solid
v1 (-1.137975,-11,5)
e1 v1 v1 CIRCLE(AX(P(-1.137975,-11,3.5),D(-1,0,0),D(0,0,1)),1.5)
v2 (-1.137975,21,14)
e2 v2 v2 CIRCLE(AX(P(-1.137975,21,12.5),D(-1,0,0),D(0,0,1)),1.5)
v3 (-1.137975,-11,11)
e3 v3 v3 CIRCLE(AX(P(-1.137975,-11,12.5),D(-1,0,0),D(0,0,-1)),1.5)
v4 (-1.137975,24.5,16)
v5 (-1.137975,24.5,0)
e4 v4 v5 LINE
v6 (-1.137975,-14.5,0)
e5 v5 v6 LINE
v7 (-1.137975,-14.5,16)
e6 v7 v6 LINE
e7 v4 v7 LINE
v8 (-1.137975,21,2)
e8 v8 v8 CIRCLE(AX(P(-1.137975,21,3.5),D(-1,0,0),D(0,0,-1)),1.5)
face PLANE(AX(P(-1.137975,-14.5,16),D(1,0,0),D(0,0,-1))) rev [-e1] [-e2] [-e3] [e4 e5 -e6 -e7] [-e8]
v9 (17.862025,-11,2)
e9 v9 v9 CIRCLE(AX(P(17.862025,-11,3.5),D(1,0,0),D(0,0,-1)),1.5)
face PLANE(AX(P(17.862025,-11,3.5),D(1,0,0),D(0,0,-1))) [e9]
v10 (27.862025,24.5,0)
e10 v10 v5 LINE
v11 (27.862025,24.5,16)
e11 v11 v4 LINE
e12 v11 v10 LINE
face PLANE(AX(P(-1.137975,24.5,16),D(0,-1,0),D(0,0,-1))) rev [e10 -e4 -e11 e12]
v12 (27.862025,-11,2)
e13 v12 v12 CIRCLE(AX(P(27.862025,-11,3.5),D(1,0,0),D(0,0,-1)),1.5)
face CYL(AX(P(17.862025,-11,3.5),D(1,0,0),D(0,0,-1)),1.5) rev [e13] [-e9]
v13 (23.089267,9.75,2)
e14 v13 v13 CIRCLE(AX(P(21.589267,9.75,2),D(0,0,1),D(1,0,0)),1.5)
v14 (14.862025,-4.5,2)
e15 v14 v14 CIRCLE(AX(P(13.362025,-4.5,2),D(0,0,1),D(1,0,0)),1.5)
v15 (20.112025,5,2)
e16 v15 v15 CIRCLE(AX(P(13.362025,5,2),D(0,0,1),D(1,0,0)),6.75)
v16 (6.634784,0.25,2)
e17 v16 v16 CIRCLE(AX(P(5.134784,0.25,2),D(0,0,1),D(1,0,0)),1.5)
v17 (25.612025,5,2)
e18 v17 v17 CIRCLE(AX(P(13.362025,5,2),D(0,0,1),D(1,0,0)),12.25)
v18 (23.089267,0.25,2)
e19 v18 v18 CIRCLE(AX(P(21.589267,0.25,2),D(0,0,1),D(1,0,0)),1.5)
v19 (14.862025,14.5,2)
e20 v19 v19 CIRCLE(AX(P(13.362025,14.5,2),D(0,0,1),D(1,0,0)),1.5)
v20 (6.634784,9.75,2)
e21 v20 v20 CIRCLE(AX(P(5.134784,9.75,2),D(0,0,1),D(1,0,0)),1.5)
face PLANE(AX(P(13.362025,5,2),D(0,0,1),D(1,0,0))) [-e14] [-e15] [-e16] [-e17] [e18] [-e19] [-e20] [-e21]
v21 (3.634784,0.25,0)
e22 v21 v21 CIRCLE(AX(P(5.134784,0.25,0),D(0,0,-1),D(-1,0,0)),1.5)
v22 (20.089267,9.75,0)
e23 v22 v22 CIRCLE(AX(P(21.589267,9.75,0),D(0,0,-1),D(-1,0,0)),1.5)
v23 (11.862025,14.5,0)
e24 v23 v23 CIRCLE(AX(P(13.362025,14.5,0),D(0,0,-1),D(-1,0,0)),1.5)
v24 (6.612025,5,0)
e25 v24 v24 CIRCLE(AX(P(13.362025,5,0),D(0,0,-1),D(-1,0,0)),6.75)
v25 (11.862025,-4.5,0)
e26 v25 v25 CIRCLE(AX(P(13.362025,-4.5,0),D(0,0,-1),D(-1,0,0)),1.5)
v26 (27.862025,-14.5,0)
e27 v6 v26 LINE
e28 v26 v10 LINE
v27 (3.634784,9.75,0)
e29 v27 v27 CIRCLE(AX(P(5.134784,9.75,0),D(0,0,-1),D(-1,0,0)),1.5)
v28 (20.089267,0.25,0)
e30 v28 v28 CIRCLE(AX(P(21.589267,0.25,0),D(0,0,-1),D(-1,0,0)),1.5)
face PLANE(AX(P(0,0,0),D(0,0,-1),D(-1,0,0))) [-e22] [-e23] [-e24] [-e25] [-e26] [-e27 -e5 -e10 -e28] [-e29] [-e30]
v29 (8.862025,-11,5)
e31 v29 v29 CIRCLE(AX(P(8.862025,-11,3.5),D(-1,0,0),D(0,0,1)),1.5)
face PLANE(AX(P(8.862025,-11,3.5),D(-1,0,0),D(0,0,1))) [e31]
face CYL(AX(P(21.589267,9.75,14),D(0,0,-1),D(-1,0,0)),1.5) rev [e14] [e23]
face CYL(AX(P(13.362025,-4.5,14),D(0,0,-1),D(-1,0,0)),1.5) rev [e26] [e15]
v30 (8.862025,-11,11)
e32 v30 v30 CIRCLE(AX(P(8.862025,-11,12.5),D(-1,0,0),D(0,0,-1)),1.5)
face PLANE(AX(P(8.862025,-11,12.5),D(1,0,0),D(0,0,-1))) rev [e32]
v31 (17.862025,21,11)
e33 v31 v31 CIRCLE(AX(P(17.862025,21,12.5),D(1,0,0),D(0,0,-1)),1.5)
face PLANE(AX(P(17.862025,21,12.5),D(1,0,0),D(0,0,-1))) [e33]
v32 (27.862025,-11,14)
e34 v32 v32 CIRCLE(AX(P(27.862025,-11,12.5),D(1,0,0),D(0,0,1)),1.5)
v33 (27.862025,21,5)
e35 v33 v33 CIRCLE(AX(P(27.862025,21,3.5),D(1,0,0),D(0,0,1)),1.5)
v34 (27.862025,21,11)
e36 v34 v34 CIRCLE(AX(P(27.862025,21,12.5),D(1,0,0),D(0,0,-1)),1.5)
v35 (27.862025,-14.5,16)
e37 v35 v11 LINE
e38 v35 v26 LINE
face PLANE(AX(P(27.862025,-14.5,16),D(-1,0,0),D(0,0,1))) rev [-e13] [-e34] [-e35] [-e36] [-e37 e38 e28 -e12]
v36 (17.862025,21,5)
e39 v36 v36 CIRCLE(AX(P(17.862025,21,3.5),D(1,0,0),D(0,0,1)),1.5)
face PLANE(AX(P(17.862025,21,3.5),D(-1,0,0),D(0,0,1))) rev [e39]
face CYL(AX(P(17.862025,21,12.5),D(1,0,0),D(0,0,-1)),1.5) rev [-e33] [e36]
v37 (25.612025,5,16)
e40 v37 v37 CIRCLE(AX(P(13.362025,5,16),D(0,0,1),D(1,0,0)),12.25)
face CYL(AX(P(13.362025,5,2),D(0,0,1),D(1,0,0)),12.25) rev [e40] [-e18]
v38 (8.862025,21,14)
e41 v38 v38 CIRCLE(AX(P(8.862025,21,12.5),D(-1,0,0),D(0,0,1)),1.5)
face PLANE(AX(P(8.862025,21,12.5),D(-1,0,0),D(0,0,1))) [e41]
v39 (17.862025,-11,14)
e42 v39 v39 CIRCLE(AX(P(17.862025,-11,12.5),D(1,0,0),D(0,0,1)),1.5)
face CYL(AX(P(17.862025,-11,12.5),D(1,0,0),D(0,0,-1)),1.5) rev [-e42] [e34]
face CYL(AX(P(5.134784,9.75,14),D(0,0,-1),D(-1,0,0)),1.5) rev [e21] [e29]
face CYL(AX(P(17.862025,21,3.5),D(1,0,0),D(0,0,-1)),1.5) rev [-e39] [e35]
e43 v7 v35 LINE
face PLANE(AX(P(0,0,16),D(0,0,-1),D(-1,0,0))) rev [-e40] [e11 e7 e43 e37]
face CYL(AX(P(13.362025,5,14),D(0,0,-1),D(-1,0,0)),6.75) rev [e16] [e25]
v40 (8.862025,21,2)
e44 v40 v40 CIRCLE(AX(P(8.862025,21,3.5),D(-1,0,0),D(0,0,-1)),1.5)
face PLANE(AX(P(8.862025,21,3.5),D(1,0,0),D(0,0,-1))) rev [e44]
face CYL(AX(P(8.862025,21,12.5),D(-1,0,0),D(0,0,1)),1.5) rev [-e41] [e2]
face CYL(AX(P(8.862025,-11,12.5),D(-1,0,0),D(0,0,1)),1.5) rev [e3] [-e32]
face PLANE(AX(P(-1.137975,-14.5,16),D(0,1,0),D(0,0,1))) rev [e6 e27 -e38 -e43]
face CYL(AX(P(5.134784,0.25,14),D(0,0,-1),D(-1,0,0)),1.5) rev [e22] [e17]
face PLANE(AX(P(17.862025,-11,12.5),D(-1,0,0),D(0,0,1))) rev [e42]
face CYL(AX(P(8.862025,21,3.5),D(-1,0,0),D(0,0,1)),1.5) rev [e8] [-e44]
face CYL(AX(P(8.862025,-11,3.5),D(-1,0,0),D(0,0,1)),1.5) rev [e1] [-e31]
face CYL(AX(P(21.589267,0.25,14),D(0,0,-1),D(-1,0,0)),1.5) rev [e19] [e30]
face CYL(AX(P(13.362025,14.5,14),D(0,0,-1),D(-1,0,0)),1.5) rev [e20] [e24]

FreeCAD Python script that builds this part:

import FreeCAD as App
import Part
import Sketcher

V = App.Vector
Q = App.Units.Quantity


def add_polygon(sketch, points):
    """Adds a closed chain of lines whose ends are joined by coincident constraints."""
    first, n = sketch.GeometryCount, len(points)
    for a, b in zip(points, points[1:] + points[:1]):
        sketch.addGeometry(Part.LineSegment(App.Vector(*a, 0), App.Vector(*b, 0)), False)
    for i in range(n):
        sketch.addConstraint(Sketcher.Constraint("Coincident", first + i, 2, first + (i + 1) % n, 1))

doc = App.newDocument("Part")
params = doc.addObject("Spreadsheet::Sheet", "Params")
for row, (alias, value) in enumerate([
    ("sketch1_width", "29 mm"),
    ("sketch1_height", "39 mm"),
    ("pad1_length", "16 mm"),
    ("sketch2_diameter", "24.5 mm"),
    ("pocket1_length", "14 mm"),
    ("sketch3_diameter", "13.5 mm"),
    ("pocket2_length", "14 mm"),
    ("sketch4_diameter", "3 mm"),
    ("pocket3_length", "14 mm"),
    ("sketch5_diameter", "3 mm"),
    ("pocket4_length", "10 mm"),
    ("sketch6_diameter", "3 mm"),
    ("pocket5_length", "10 mm"),
], start=1):
    params.set(f"A{row}", alias)
    params.set(f"B{row}", "=" + value)
    params.setAlias(f"B{row}", alias)

body = doc.addObject("PartDesign::Body", "Body")

sketch1 = body.newObject("Sketcher::SketchObject", "Sketch")
sketch1.AttachmentSupport = (doc.getObject("XY_Plane"), [""])
sketch1.MapMode = "FlatFace"
add_polygon(sketch1, [(-1, 24), (-1, -14), (28, -14), (28, 24)])
sketch1.addConstraint(Sketcher.Constraint("Vertical", 0))
sketch1.addConstraint(Sketcher.Constraint("Horizontal", 1))
sketch1.addConstraint(Sketcher.Constraint("Vertical", 2))
sketch1.addConstraint(Sketcher.Constraint("Horizontal", 3))
sketch1.addConstraint(Sketcher.Constraint("DistanceX", 1, 1, 1, 2, Q("29 mm")))
sketch1.addConstraint(Sketcher.Constraint("DistanceY", 0, 2, 0, 1, Q("39 mm")))
sketch1.addConstraint(Sketcher.Constraint("DistanceY", 0, 2, -1, 1, Q("14.5 mm")))
sketch1.addConstraint(Sketcher.Constraint("DistanceX", 0, 2, -1, 1, Q("1.137975 mm")))
sketch1.setExpression("Constraints[8]", "Params.sketch1_width")
sketch1.setExpression("Constraints[9]", "Params.sketch1_height")
pad1 = body.newObject("PartDesign::Pad", "Pad")
pad1.Profile = sketch1
pad1.setExpression("Length", "Params.pad1_length")

sketch2 = body.newObject("Sketcher::SketchObject", "Sketch001")
sketch2.AttachmentSupport = (doc.getObject("XY_Plane"), [""])
sketch2.MapMode = "FlatFace"
sketch2.AttachmentOffset = App.Placement(V(0, 0, 16), App.Rotation())
sketch2.addGeometry(Part.Circle(V(13, 5, 0), V(0, 0, 1), 12), False)
sketch2.addConstraint(Sketcher.Constraint("Diameter", 0, Q("24.5 mm")))
sketch2.addConstraint(Sketcher.Constraint("DistanceY", -1, 1, 0, 3, Q("5 mm")))
sketch2.addConstraint(Sketcher.Constraint("DistanceX", -1, 1, 0, 3, Q("13.362025 mm")))
sketch2.setExpression("Constraints[0]", "Params.sketch2_diameter")
pocket1 = body.newObject("PartDesign::Pocket", "Pocket")
pocket1.Profile = sketch2
pocket1.setExpression("Length", "Params.pocket1_length")

sketch3 = body.newObject("Sketcher::SketchObject", "Sketch002")
sketch3.AttachmentSupport = (doc.getObject("XY_Plane"), [""])
sketch3.MapMode = "FlatFace"
sketch3.addGeometry(Part.Circle(V(13, 5, 0), V(0, 0, 1), 7), False)
sketch3.addConstraint(Sketcher.Constraint("Diameter", 0, Q("13.5 mm")))
sketch3.addConstraint(Sketcher.Constraint("DistanceY", -1, 1, 0, 3, Q("5 mm")))
sketch3.addConstraint(Sketcher.Constraint("DistanceX", -1, 1, 0, 3, Q("13.362025 mm")))
sketch3.setExpression("Constraints[0]", "Params.sketch3_diameter")
pocket2 = body.newObject("PartDesign::Pocket", "Pocket001")
pocket2.Profile = sketch3
pocket2.setExpression("Length", "Params.pocket2_length")
pocket2.Reversed = True

sketch4 = body.newObject("Sketcher::SketchObject", "Sketch003")
sketch4.AttachmentSupport = (doc.getObject("XY_Plane"), [""])
sketch4.MapMode = "FlatFace"
sketch4.addGeometry(Part.Circle(V(13.4, 14.5, 0), V(0, 0, 1), 1.5), False)
sketch4.addGeometry(Part.Circle(V(5.1, 9.8, 0), V(0, 0, 1), 1.5), False)
sketch4.addGeometry(Part.Circle(V(5.1, 0.2, 0), V(0, 0, 1), 1.5), False)
sketch4.addGeometry(Part.Circle(V(13.4, -4.5, 0), V(0, 0, 1), 1.5), False)
sketch4.addGeometry(Part.Circle(V(21.6, 0.2, 0), V(0, 0, 1), 1.5), False)
sketch4.addGeometry(Part.Circle(V(21.6, 9.8, 0), V(0, 0, 1), 1.5), False)
sketch4.addConstraint(Sketcher.Constraint("Equal", 0, 1))
sketch4.addConstraint(Sketcher.Constraint("Equal", 1, 2))
sketch4.addConstraint(Sketcher.Constraint("Equal", 2, 3))
sketch4.addConstraint(Sketcher.Constraint("Equal", 3, 4))
sketch4.addConstraint(Sketcher.Constraint("Equal", 4, 5))
sketch4.addConstraint(Sketcher.Constraint("Horizontal", 2, 3, 4, 3))
sketch4.addConstraint(Sketcher.Constraint("Horizontal", 1, 3, 5, 3))
sketch4.addConstraint(Sketcher.Constraint("Vertical", 1, 3, 2, 3))
sketch4.addConstraint(Sketcher.Constraint("Vertical", 0, 3, 3, 3))
sketch4.addConstraint(Sketcher.Constraint("Vertical", 4, 3, 5, 3))
sketch4.addConstraint(Sketcher.Constraint("Diameter", 0, Q("3 mm")))
sketch4.addConstraint(Sketcher.Constraint("DistanceY", 3, 3, 0, 3, Q("19 mm")))
sketch4.addConstraint(Sketcher.Constraint("DistanceY", -1, 1, 0, 3, Q("14.5 mm")))
sketch4.addConstraint(Sketcher.Constraint("DistanceY", 2, 3, 1, 3, Q("9.5 mm")))
sketch4.addConstraint(Sketcher.Constraint("DistanceY", -1, 1, 1, 3, Q("9.75 mm")))
sketch4.addConstraint(Sketcher.Constraint("DistanceX", 1, 3, 0, 3, Q("8.227241 mm")))
sketch4.addConstraint(Sketcher.Constraint("DistanceX", 3, 3, 4, 3, Q("8.227241 mm")))
sketch4.addConstraint(Sketcher.Constraint("DistanceX", -1, 1, 0, 3, Q("13.362025 mm")))
sketch4.setExpression("Constraints[10]", "Params.sketch4_diameter")
pocket3 = body.newObject("PartDesign::Pocket", "Pocket002")
pocket3.Profile = sketch4
pocket3.setExpression("Length", "Params.pocket3_length")
pocket3.Reversed = True

sketch5 = body.newObject("Sketcher::SketchObject", "Sketch004")
sketch5.AttachmentSupport = (doc.getObject("YZ_Plane"), [""])
sketch5.MapMode = "FlatFace"
sketch5.AttachmentOffset = App.Placement(V(0, 0, -1.137975), App.Rotation())
sketch5.addGeometry(Part.Circle(V(21, 12.5, 0), V(0, 0, 1), 1.5), False)
sketch5.addGeometry(Part.Circle(V(21, 3.5, 0), V(0, 0, 1), 1.5), False)
sketch5.addGeometry(Part.Circle(V(-11, 12.5, 0), V(0, 0, 1), 1.5), False)
sketch5.addGeometry(Part.Circle(V(-11, 3.5, 0), V(0, 0, 1), 1.5), False)
sketch5.addConstraint(Sketcher.Constraint("Equal", 0, 1))
sketch5.addConstraint(Sketcher.Constraint("Equal", 1, 2))
sketch5.addConstraint(Sketcher.Constraint("Equal", 2, 3))
sketch5.addConstraint(Sketcher.Constraint("Horizontal", 0, 3, 2, 3))
sketch5.addConstraint(Sketcher.Constraint("Horizontal", 1, 3, 3, 3))
sketch5.addConstraint(Sketcher.Constraint("Vertical", 0, 3, 1, 3))
sketch5.addConstraint(Sketcher.Constraint("Vertical", 2, 3, 3, 3))
sketch5.addConstraint(Sketcher.Constraint("Diameter", 0, Q("3 mm")))
sketch5.addConstraint(Sketcher.Constraint("DistanceX", -1, 1, 0, 3, Q("21 mm")))
sketch5.addConstraint(Sketcher.Constraint("DistanceX", 2, 3, -1, 1, Q("11 mm")))
sketch5.addConstraint(Sketcher.Constraint("DistanceY", 1, 3, 0, 3, Q("9 mm")))
sketch5.addConstraint(Sketcher.Constraint("DistanceY", -1, 1, 0, 3, Q("12.5 mm")))
sketch5.setExpression("Constraints[7]", "Params.sketch5_diameter")
pocket4 = body.newObject("PartDesign::Pocket", "Pocket003")
pocket4.Profile = sketch5
pocket4.setExpression("Length", "Params.pocket4_length")
pocket4.Reversed = True

sketch6 = body.newObject("Sketcher::SketchObject", "Sketch005")
sketch6.AttachmentSupport = (doc.getObject("YZ_Plane"), [""])
sketch6.MapMode = "FlatFace"
sketch6.AttachmentOffset = App.Placement(V(0, 0, 17.862025), App.Rotation())
sketch6.addGeometry(Part.Circle(V(-11, 12.5, 0), V(0, 0, 1), 1.5), False)
sketch6.addGeometry(Part.Circle(V(-11, 3.5, 0), V(0, 0, 1), 1.5), False)
sketch6.addGeometry(Part.Circle(V(21, 3.5, 0), V(0, 0, 1), 1.5), False)
sketch6.addGeometry(Part.Circle(V(21, 12.5, 0), V(0, 0, 1), 1.5), False)
sketch6.addConstraint(Sketcher.Constraint("Equal", 0, 1))
sketch6.addConstraint(Sketcher.Constraint("Equal", 1, 2))
sketch6.addConstraint(Sketcher.Constraint("Equal", 2, 3))
sketch6.addConstraint(Sketcher.Constraint("Horizontal", 1, 3, 2, 3))
sketch6.addConstraint(Sketcher.Constraint("Horizontal", 0, 3, 3, 3))
sketch6.addConstraint(Sketcher.Constraint("Vertical", 0, 3, 1, 3))
sketch6.addConstraint(Sketcher.Constraint("Vertical", 2, 3, 3, 3))
sketch6.addConstraint(Sketcher.Constraint("Diameter", 0, Q("3 mm")))
sketch6.addConstraint(Sketcher.Constraint("DistanceX", 0, 3, -1, 1, Q("11 mm")))
sketch6.addConstraint(Sketcher.Constraint("DistanceX", -1, 1, 2, 3, Q("21 mm")))
sketch6.addConstraint(Sketcher.Constraint("DistanceY", 1, 3, 0, 3, Q("9 mm")))
sketch6.addConstraint(Sketcher.Constraint("DistanceY", -1, 1, 0, 3, Q("12.5 mm")))
sketch6.setExpression("Constraints[7]", "Params.sketch6_diameter")
pocket5 = body.newObject("PartDesign::Pocket", "Pocket004")
pocket5.Profile = sketch6
pocket5.setExpression("Length", "Params.pocket5_length")
pocket5.Reversed = True

doc.recompute()
